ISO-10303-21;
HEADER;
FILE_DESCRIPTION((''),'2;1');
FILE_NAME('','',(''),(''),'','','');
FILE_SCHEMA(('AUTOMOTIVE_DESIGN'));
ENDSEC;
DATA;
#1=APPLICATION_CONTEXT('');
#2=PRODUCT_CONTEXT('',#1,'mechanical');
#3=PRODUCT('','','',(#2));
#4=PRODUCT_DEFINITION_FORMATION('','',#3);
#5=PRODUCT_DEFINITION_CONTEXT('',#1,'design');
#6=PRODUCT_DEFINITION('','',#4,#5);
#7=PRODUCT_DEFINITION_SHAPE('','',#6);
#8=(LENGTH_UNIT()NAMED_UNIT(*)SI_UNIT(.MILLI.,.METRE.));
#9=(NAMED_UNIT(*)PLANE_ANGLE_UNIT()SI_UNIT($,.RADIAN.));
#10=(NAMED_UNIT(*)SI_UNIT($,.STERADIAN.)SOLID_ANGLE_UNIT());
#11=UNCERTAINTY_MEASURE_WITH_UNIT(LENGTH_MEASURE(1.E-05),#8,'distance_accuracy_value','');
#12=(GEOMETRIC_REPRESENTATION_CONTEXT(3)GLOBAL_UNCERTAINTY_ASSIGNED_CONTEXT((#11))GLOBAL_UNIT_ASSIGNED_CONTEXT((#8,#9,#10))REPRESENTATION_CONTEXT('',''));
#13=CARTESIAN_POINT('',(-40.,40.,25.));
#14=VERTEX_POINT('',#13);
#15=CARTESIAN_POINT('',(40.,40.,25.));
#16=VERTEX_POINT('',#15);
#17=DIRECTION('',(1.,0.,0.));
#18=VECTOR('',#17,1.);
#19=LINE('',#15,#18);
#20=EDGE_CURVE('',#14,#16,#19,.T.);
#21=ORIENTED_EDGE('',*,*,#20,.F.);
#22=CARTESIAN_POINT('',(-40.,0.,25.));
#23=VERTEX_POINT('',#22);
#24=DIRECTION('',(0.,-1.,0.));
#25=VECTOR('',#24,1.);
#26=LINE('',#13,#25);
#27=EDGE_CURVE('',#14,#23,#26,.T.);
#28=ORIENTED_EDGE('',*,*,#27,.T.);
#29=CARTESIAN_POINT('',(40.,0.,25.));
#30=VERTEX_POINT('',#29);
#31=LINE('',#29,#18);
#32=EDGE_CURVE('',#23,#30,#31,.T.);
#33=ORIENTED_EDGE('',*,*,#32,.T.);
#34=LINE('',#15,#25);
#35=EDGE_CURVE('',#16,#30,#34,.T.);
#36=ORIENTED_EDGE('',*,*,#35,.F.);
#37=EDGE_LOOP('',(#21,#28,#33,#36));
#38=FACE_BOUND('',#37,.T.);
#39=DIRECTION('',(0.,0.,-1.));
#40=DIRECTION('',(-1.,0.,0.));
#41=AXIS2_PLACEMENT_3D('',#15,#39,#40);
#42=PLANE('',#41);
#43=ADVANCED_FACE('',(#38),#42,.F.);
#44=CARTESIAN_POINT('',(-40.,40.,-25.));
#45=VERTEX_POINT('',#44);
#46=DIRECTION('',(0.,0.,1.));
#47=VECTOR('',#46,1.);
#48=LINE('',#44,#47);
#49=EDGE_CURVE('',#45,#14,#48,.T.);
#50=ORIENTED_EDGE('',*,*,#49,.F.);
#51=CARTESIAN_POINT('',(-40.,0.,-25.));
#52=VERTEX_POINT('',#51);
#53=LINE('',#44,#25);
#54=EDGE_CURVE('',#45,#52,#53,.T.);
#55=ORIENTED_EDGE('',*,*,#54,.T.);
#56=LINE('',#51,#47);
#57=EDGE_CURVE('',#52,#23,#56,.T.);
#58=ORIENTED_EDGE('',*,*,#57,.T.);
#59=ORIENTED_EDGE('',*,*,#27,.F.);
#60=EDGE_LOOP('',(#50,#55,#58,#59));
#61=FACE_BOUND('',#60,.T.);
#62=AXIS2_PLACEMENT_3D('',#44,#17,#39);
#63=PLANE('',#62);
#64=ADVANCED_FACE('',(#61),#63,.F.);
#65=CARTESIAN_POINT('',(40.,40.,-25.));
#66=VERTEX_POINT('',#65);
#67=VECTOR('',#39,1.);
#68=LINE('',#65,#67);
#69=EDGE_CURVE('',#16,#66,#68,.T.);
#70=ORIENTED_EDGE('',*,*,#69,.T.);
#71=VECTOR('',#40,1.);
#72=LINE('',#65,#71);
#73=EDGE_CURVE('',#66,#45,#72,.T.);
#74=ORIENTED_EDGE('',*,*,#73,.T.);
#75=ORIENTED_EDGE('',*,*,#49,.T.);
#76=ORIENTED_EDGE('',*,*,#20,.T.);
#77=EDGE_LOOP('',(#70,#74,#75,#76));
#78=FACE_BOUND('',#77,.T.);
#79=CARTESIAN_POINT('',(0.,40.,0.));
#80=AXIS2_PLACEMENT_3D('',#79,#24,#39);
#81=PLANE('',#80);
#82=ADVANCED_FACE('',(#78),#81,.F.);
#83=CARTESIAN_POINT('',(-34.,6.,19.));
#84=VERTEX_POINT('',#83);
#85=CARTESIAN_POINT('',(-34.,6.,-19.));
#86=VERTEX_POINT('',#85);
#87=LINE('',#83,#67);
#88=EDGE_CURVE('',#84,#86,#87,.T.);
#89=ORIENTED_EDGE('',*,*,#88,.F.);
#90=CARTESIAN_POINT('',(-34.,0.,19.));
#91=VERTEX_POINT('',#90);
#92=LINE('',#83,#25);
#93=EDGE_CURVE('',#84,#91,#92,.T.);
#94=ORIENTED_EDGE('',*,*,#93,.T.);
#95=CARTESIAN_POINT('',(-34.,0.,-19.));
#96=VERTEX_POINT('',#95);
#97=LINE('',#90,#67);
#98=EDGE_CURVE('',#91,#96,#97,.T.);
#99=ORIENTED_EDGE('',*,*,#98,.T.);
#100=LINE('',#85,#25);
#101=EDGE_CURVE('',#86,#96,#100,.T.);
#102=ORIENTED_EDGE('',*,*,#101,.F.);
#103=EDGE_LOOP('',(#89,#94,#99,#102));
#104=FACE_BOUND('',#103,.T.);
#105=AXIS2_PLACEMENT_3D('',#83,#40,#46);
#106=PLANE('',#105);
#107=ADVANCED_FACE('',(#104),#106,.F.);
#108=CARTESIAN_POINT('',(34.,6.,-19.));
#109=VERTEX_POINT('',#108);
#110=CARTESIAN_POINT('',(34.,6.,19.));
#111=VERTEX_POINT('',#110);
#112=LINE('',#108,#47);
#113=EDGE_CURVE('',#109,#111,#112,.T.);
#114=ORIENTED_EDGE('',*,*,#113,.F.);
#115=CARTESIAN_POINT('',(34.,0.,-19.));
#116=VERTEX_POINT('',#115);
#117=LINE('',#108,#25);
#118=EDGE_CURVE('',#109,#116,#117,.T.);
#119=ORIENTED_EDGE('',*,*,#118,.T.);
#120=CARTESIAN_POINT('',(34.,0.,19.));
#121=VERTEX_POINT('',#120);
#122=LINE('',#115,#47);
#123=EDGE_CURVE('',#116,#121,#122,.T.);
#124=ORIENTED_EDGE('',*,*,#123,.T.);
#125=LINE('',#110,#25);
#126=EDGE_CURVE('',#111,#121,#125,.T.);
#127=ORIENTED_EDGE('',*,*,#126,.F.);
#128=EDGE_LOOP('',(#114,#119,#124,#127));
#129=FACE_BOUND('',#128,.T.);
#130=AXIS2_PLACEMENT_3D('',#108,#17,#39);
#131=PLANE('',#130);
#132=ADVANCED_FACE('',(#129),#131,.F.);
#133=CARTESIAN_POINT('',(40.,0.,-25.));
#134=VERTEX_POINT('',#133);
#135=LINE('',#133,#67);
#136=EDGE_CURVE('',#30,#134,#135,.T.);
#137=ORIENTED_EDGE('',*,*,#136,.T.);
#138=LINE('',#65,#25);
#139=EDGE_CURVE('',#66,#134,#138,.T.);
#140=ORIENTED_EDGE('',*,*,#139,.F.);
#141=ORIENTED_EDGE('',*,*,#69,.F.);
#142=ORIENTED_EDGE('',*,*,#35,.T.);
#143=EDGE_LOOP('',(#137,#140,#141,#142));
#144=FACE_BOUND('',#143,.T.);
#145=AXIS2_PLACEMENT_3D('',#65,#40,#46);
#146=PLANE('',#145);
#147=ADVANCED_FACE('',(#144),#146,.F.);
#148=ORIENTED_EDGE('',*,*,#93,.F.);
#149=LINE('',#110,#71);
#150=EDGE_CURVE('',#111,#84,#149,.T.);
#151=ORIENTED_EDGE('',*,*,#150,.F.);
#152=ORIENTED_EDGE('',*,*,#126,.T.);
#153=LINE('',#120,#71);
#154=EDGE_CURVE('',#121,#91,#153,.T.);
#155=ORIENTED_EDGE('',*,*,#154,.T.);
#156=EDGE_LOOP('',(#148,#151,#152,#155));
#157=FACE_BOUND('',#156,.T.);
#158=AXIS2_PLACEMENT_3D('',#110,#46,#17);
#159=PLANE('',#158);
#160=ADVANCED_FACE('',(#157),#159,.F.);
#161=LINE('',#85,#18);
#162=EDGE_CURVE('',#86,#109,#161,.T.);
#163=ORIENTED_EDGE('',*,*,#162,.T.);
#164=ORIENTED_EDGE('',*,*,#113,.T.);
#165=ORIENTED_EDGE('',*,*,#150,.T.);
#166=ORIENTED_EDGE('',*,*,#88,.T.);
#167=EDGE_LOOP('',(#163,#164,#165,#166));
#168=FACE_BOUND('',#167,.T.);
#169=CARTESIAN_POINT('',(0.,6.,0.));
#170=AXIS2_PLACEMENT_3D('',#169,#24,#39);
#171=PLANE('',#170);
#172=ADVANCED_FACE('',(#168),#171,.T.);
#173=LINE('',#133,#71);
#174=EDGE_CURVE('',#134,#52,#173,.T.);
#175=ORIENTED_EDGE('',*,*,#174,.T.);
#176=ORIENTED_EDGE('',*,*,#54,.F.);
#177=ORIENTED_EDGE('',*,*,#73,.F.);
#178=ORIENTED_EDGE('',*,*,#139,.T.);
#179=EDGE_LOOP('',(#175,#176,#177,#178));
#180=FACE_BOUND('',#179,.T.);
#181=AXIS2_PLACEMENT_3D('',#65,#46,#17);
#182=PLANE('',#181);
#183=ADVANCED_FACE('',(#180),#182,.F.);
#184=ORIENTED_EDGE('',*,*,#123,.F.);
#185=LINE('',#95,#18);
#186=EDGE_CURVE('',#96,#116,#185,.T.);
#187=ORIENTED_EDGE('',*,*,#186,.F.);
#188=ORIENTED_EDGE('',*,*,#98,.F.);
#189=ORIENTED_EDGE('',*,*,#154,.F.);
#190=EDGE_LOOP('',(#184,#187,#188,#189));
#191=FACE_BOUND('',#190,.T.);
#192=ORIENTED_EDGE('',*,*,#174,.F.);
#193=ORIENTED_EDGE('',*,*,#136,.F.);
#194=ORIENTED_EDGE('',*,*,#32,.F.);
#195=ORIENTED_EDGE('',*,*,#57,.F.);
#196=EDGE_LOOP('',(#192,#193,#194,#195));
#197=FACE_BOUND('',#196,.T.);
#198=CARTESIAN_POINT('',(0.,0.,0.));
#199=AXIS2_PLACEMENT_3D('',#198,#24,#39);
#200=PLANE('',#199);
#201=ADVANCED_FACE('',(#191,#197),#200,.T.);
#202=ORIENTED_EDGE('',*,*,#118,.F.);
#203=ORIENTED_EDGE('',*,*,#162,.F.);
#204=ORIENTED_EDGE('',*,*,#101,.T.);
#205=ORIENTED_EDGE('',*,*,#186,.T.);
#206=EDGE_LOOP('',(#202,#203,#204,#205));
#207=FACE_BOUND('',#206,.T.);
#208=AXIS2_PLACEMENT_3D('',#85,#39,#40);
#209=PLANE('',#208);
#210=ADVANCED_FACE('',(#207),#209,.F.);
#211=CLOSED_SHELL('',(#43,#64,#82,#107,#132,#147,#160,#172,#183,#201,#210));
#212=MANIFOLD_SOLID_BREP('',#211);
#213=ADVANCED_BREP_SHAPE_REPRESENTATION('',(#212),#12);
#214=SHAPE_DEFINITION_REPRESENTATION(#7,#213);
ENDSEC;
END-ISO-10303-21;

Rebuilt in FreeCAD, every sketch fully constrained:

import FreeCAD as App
import Part
import Sketcher

V = App.Vector

doc = App.newDocument("Part")
body = doc.addObject("PartDesign::Body", "Body")

sketch1 = doc.addObject("Sketcher::SketchObject", "Sketch")
body.addObject(sketch1)
sketch1.AttachmentSupport = (doc.XZ_Plane, [""])
sketch1.MapMode = "FlatFace"
sketch1.addGeometry(Part.LineSegment(V(-40, -25, 0), V(-40, 25, 0)), False)
sketch1.addGeometry(Part.LineSegment(V(-40, 25, 0), V(40, 25, 0)), False)
sketch1.addGeometry(Part.LineSegment(V(40, 25, 0), V(40, -25, 0)), False)
sketch1.addGeometry(Part.LineSegment(V(40, -25, 0), V(-40, -25, 0)), False)
sketch1.addConstraint(Sketcher.Constraint("Coincident", 0, 2, 1, 1))
sketch1.addConstraint(Sketcher.Constraint("Coincident", 1, 2, 2, 1))
sketch1.addConstraint(Sketcher.Constraint("Coincident", 2, 2, 3, 1))
sketch1.addConstraint(Sketcher.Constraint("Coincident", 3, 2, 0, 1))
sketch1.addConstraint(Sketcher.Constraint("Vertical", 0))
sketch1.addConstraint(Sketcher.Constraint("Horizontal", 1))
sketch1.addConstraint(Sketcher.Constraint("Vertical", 2))
sketch1.addConstraint(Sketcher.Constraint("Horizontal", 3))
sketch1.addConstraint(Sketcher.Constraint("Symmetric", 0, 2, 2, 2, -1, 1))
sketch1.addConstraint(Sketcher.Constraint("DistanceX", 1, 1, 1, 2, 80.0))
sketch1.addConstraint(Sketcher.Constraint("DistanceY", 0, 1, 0, 2, 50.0))
pad1 = doc.addObject("PartDesign::Pad", "Pad")
body.addObject(pad1)
pad1.Profile = sketch1
pad1.Length = 40
pad1.Reversed = True

sketch2 = doc.addObject("Sketcher::SketchObject", "Sketch001")
body.addObject(sketch2)
sketch2.AttachmentSupport = (doc.XZ_Plane, [""])
sketch2.MapMode = "FlatFace"
sketch2.addGeometry(Part.LineSegment(V(-34, 19, 0), V(-34, -19, 0)), False)
sketch2.addGeometry(Part.LineSegment(V(-34, -19, 0), V(34, -19, 0)), False)
sketch2.addGeometry(Part.LineSegment(V(34, -19, 0), V(34, 19, 0)), False)
sketch2.addGeometry(Part.LineSegment(V(34, 19, 0), V(-34, 19, 0)), False)
sketch2.addConstraint(Sketcher.Constraint("Coincident", 0, 2, 1, 1))
sketch2.addConstraint(Sketcher.Constraint("Coincident", 1, 2, 2, 1))
sketch2.addConstraint(Sketcher.Constraint("Coincident", 2, 2, 3, 1))
sketch2.addConstraint(Sketcher.Constraint("Coincident", 3, 2, 0, 1))
sketch2.addConstraint(Sketcher.Constraint("Vertical", 0))
sketch2.addConstraint(Sketcher.Constraint("Horizontal", 1))
sketch2.addConstraint(Sketcher.Constraint("Vertical", 2))
sketch2.addConstraint(Sketcher.Constraint("Horizontal", 3))
sketch2.addConstraint(Sketcher.Constraint("Symmetric", 0, 2, 2, 2, -1, 1))
sketch2.addConstraint(Sketcher.Constraint("DistanceX", 1, 1, 1, 2, 68.0))
sketch2.addConstraint(Sketcher.Constraint("DistanceY", 0, 2, 0, 1, 38.0))
pocket1 = doc.addObject("PartDesign::Pocket", "Pocket")
body.addObject(pocket1)
pocket1.Profile = sketch2
pocket1.Length = 6

doc.recompute()
